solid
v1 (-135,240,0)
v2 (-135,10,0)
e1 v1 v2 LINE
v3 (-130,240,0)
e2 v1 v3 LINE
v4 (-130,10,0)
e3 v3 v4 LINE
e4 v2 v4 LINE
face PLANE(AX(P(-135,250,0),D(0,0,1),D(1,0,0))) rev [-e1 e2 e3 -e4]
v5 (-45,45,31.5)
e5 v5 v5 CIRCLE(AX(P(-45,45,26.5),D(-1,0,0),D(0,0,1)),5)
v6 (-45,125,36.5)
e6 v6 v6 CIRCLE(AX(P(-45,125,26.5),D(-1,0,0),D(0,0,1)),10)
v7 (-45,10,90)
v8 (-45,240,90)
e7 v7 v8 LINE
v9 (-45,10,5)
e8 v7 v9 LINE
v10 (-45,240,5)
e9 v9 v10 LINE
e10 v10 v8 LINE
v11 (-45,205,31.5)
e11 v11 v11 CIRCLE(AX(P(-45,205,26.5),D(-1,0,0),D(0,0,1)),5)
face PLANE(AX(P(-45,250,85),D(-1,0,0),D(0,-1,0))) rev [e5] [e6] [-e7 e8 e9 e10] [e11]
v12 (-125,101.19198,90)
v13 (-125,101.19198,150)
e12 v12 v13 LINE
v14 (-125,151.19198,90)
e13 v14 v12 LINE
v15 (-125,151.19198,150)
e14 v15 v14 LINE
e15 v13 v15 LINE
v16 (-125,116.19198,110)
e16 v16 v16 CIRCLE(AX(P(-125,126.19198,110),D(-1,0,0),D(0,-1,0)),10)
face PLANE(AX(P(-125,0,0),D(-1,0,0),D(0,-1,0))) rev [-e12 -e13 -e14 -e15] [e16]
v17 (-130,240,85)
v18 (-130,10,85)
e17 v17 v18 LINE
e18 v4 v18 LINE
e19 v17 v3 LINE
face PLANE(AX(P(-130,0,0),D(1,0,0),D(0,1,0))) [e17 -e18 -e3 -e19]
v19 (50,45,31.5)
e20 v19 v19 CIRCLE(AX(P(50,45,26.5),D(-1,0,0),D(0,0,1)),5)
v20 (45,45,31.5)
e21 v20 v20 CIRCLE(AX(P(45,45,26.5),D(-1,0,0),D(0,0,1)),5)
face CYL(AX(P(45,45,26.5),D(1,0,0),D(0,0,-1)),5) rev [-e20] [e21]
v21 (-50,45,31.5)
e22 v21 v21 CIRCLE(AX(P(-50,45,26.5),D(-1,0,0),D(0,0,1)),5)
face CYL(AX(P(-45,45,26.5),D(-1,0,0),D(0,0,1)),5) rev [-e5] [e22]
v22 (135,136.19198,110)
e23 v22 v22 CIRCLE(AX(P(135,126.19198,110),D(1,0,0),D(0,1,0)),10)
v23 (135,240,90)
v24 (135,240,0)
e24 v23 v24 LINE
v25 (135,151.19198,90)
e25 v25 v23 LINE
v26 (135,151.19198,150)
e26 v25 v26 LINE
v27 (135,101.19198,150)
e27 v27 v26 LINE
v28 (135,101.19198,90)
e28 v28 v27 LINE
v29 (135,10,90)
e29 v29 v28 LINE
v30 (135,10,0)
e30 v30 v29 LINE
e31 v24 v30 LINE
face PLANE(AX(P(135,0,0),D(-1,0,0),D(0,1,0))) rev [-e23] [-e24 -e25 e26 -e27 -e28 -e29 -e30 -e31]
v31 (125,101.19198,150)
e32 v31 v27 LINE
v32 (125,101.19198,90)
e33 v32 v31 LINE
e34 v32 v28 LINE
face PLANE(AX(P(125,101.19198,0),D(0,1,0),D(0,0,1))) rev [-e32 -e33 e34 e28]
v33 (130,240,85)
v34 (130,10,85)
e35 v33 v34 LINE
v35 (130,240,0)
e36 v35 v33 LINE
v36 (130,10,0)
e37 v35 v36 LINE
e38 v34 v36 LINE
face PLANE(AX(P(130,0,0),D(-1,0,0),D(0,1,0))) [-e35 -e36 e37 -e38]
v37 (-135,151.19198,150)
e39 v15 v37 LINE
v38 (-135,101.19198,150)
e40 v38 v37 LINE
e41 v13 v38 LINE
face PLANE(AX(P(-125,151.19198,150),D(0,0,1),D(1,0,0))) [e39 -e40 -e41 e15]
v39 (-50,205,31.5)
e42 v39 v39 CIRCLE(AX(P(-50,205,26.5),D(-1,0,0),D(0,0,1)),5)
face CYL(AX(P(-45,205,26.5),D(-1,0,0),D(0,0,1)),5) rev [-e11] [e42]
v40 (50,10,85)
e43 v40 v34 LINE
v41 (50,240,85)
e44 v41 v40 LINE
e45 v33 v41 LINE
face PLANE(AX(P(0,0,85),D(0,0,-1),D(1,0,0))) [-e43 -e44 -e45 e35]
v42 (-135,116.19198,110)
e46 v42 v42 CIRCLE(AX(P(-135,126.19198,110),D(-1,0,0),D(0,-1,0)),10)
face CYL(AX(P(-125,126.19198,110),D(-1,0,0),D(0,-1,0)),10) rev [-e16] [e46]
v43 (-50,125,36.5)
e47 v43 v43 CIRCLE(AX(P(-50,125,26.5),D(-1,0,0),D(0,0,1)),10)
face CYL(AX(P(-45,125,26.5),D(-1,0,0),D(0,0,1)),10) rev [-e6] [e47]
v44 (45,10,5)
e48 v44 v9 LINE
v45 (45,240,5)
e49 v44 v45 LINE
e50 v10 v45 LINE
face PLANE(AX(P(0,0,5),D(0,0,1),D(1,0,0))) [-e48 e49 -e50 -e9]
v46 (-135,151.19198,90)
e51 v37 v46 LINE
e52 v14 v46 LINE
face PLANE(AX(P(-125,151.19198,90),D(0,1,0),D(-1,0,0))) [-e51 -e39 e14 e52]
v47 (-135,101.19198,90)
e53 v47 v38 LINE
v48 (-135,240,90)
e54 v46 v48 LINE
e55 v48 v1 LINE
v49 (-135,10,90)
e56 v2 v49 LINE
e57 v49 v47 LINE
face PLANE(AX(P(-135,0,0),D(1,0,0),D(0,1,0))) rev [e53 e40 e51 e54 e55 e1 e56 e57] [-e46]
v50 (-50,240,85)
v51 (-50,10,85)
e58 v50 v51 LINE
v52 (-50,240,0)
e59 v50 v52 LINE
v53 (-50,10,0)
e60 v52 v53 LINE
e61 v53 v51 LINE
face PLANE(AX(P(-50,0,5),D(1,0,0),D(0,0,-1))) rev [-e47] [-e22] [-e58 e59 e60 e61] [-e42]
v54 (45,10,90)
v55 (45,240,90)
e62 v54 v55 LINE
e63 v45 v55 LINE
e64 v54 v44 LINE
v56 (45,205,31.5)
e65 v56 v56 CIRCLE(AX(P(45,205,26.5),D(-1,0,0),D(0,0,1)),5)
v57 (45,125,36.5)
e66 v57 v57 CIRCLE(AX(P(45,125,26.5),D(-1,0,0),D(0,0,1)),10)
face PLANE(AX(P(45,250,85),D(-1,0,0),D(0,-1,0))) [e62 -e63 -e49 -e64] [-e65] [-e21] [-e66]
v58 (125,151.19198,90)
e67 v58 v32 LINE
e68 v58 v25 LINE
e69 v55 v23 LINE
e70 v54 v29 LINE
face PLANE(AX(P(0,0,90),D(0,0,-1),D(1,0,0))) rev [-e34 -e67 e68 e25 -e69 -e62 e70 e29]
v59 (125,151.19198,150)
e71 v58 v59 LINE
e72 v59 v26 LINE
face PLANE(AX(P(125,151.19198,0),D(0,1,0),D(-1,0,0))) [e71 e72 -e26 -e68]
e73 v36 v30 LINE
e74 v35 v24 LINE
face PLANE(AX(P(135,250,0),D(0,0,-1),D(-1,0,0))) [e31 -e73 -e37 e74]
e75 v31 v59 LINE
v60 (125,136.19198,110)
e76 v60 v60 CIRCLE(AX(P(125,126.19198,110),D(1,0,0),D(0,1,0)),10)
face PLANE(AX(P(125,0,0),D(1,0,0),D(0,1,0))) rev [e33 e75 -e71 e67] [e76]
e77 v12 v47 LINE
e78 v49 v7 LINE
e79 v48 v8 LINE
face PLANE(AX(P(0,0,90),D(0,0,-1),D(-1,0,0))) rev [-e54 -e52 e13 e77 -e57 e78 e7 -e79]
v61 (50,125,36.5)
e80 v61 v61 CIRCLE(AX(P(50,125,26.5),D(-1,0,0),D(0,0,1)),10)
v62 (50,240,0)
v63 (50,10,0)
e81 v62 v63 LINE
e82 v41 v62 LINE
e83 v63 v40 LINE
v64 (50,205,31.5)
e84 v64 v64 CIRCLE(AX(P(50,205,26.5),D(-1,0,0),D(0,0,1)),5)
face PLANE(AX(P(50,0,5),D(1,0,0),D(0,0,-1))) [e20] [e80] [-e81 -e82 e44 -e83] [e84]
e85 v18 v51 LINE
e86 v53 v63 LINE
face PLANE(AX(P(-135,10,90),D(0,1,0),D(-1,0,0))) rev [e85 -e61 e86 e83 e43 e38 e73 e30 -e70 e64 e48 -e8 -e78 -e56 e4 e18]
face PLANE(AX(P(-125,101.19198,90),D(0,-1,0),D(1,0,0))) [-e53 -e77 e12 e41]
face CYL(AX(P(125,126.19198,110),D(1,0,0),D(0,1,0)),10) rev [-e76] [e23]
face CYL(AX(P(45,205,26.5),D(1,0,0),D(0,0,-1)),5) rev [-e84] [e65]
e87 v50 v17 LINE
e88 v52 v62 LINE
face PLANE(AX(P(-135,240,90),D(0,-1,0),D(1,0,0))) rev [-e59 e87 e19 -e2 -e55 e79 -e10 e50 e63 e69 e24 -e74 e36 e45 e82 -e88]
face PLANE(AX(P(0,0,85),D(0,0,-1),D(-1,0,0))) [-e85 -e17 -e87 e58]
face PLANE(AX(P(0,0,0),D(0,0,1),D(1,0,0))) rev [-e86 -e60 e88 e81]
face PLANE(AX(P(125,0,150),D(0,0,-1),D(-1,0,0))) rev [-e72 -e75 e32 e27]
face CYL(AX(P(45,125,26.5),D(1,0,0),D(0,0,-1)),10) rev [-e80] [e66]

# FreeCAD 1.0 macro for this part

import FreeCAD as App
import Part
import Sketcher
from FreeCAD import Vector
Q = App.Units.Quantity


def add_polygon(sketch, points):
    """Adds a closed chain of lines whose ends are joined by coincident constraints."""
    first, n = sketch.GeometryCount, len(points)
    for a, b in zip(points, points[1:] + points[:1]):
        sketch.addGeometry(Part.LineSegment(App.Vector(*a, 0), App.Vector(*b, 0)), False)
    for i in range(n):
        sketch.addConstraint(Sketcher.Constraint("Coincident", first + i, 2, first + (i + 1) % n, 1))

doc = App.newDocument("Part")
body = doc.addObject("PartDesign::Body", "Body")

# Sketch on XY plane
sketch1 = body.newObject("Sketcher::SketchObject", "Sketch")
sketch1.AttachmentSupport = (doc.getObject("XY_Plane"), [""])
sketch1.MapMode = "FlatFace"
add_polygon(sketch1, [(-50, 250), (-50, 0), (0, 0), (0, 250)])  # lines 0-3
sketch1.addConstraint([
    Sketcher.Constraint("Vertical", 0),
    Sketcher.Constraint("Horizontal", 1),
    Sketcher.Constraint("Vertical", 2),
    Sketcher.Constraint("Horizontal", 3),
    Sketcher.Constraint("Coincident", 1, 2, -1, 1),
    Sketcher.Constraint("DistanceX", 1, 1, 1, 2, Q("50 mm")),
    Sketcher.Constraint("DistanceY", 0, 2, 0, 1, Q("250 mm")),
])
pad1 = body.newObject("PartDesign::Pad", "Pad")
pad1.Profile = sketch1
pad1.Length = 5

# Sketch on XY plane
sketch2 = body.newObject("Sketcher::SketchObject", "Sketch001")
sketch2.AttachmentSupport = (doc.getObject("XY_Plane"), [""])
sketch2.MapMode = "FlatFace"
sketch2.AttachmentOffset = App.Placement(Vector(0, 0, 5), App.Rotation())
add_polygon(sketch2, [(-50, 250), (-50, 0), (-45, 0), (-45, 250)])  # lines 0-3
sketch2.addConstraint([
    Sketcher.Constraint("Vertical", 0),
    Sketcher.Constraint("Horizontal", 1),
    Sketcher.Constraint("Vertical", 2),
    Sketcher.Constraint("Horizontal", 3),
    Sketcher.Constraint("PointOnObject", 0, 2, -1),
    Sketcher.Constraint("DistanceX", 1, 1, 1, 2, Q("5 mm")),
    Sketcher.Constraint("DistanceY", 0, 2, 0, 1, Q("250 mm")),
    Sketcher.Constraint("DistanceX", 0, 2, -1, 1, Q("50 mm")),
])
pad2 = body.newObject("PartDesign::Pad", "Pad001")
pad2.Profile = sketch2
pad2.Length = 80

# Sketch on XY plane
sketch3 = body.newObject("Sketcher::SketchObject", "Sketch002")
sketch3.AttachmentSupport = (doc.getObject("XY_Plane"), [""])
sketch3.MapMode = "FlatFace"
sketch3.AttachmentOffset = App.Placement(Vector(0, 0, 85), App.Rotation())
add_polygon(sketch3, [(-130, 250), (-130, 0), (-45, 0), (-45, 250)])  # lines 0-3
sketch3.addConstraint([
    Sketcher.Constraint("Vertical", 0),
    Sketcher.Constraint("Horizontal", 1),
    Sketcher.Constraint("Vertical", 2),
    Sketcher.Constraint("Horizontal", 3),
    Sketcher.Constraint("PointOnObject", 0, 2, -1),
    Sketcher.Constraint("DistanceX", 1, 1, 1, 2, Q("85 mm")),
    Sketcher.Constraint("DistanceY", 0, 2, 0, 1, Q("250 mm")),
    Sketcher.Constraint("DistanceX", 0, 2, -1, 1, Q("130 mm")),
])
pad3 = body.newObject("PartDesign::Pad", "Pad002")
pad3.Profile = sketch3
pad3.Length = 5

# Sketch on YZ plane
sketch4 = body.newObject("Sketcher::SketchObject", "Sketch003")
sketch4.AttachmentSupport = (doc.getObject("YZ_Plane"), [""])
sketch4.MapMode = "FlatFace"
sketch4.AttachmentOffset = App.Placement(Vector(0, 0, -130), App.Rotation())
add_polygon(sketch4, [(250, 0), (0, 0), (0, 90), (250, 90)])  # lines 0-3
sketch4.addConstraint([
    Sketcher.Constraint("Horizontal", 0),
    Sketcher.Constraint("Vertical", 1),
    Sketcher.Constraint("Horizontal", 2),
    Sketcher.Constraint("Vertical", 3),
    Sketcher.Constraint("Coincident", 0, 2, -1, 1),
    Sketcher.Constraint("DistanceX", 0, 2, 0, 1, Q("250 mm")),
    Sketcher.Constraint("DistanceY", 1, 1, 1, 2, Q("90 mm")),
])
pad4 = body.newObject("PartDesign::Pad", "Pad003")
pad4.Profile = sketch4
pad4.Length = 5
pad4.Reversed = True

# Sketch on YZ plane
sketch5 = body.newObject("Sketcher::SketchObject", "Sketch004")
sketch5.AttachmentSupport = (doc.getObject("YZ_Plane"), [""])
sketch5.MapMode = "FlatFace"
sketch5.AttachmentOffset = App.Placement(Vector(0, 0, -50), App.Rotation())
sketch5.addGeometry(Part.Circle(Vector(125, 26, 0), Vector(0, 0, 1), 10), False)
sketch5.addConstraint([
    Sketcher.Constraint("Diameter", 0, Q("20 mm")),
    Sketcher.Constraint("DistanceX", -1, 1, 0, 3, Q("125 mm")),
    Sketcher.Constraint("DistanceY", -1, 1, 0, 3, Q("26.5 mm")),
])
pocket1 = body.newObject("PartDesign::Pocket", "Pocket")
pocket1.Profile = sketch5
pocket1.Length = 5
pocket1.Reversed = True

# Sketch on YZ plane
sketch6 = body.newObject("Sketcher::SketchObject", "Sketch005")
sketch6.AttachmentSupport = (doc.getObject("YZ_Plane"), [""])
sketch6.MapMode = "FlatFace"
sketch6.AttachmentOffset = App.Placement(Vector(0, 0, -50), App.Rotation())
sketch6.addGeometry([
    Part.Circle(Vector(205, 26, 0), Vector(0, 0, 1), 5),
    Part.Circle(Vector(45, 26, 0), Vector(0, 0, 1), 5),
], False)
sketch6.addConstraint([
    Sketcher.Constraint("Equal", 0, 1),
    Sketcher.Constraint("Horizontal", 0, 3, 1, 3),
    Sketcher.Constraint("Diameter", 0, Q("10 mm")),
    Sketcher.Constraint("DistanceX", -1, 1, 0, 3, Q("205 mm")),
    Sketcher.Constraint("DistanceX", -1, 1, 1, 3, Q("45 mm")),
    Sketcher.Constraint("DistanceY", -1, 1, 0, 3, Q("26.5 mm")),
])
pocket2 = body.newObject("PartDesign::Pocket", "Pocket001")
pocket2.Profile = sketch6
pocket2.Length = 5
pocket2.Reversed = True
doc.recompute()

mirrored = body.newObject("PartDesign::Mirrored", "Mirrored")
mirrored.Originals = [pad1, pad2, pad3, pad4, pocket1, pocket2]
mirrored.MirrorPlane = (doc.getObject("YZ_Plane"), [""])
body.Tip = mirrored

# Sketch on YZ plane
sketch7 = body.newObject("Sketcher::SketchObject", "Sketch006")
sketch7.AttachmentSupport = (doc.getObject("YZ_Plane"), [""])
sketch7.MapMode = "FlatFace"
sketch7.AttachmentOffset = App.Placement(Vector(0, 0, 135), App.Rotation())
add_polygon(sketch7, [(151, 150), (101, 150), (101, 90), (151, 90)])  # lines 0-3
sketch7.addGeometry(Part.Circle(Vector(126, 110, 0), Vector(0, 0, 1), 10), False)  # 4
sketch7.addConstraint([
    Sketcher.Constraint("Horizontal", 0),
    Sketcher.Constraint("Vertical", 1),
    Sketcher.Constraint("Horizontal", 2),
    Sketcher.Constraint("Vertical", 3),
    Sketcher.Constraint("Diameter", 4, Q("20 mm")),
    Sketcher.Constraint("DistanceX", 0, 2, 0, 1, Q("50 mm")),
    Sketcher.Constraint("DistanceY", 1, 2, 1, 1, Q("60 mm")),
    Sketcher.Constraint("DistanceY", -1, 1, 4, 3, Q("110 mm")),
    Sketcher.Constraint("DistanceY", -1, 1, 0, 2, Q("150 mm")),
    Sketcher.Constraint("DistanceX", 0, 2, 4, 3, Q("25 mm")),
    Sketcher.Constraint("DistanceX", -1, 1, 4, 3, Q("126.19198 mm")),
])
pad5 = body.newObject("PartDesign::Pad", "Pad004")
pad5.Profile = sketch7
pad5.Length = 10
pad5.Reversed = True

# Sketch on YZ plane
sketch8 = body.newObject("Sketcher::SketchObject", "Sketch007")
sketch8.AttachmentSupport = (doc.getObject("YZ_Plane"), [""])
sketch8.MapMode = "FlatFace"
sketch8.AttachmentOffset = App.Placement(Vector(0, 0, -135), App.Rotation())
add_polygon(sketch8, [(151, 90), (101, 90), (101, 150), (151, 150)])  # lines 0-3
sketch8.addGeometry(Part.Circle(Vector(126, 110, 0), Vector(0, 0, 1), 10), False)  # 4
sketch8.addConstraint([
    Sketcher.Constraint("Horizontal", 0),
    Sketcher.Constraint("Vertical", 1),
    Sketcher.Constraint("Horizontal", 2),
    Sketcher.Constraint("Vertical", 3),
    Sketcher.Constraint("Diameter", 4, Q("20 mm")),
    Sketcher.Constraint("DistanceX", 0, 2, 0, 1, Q("50 mm")),
    Sketcher.Constraint("DistanceY", 1, 1, 1, 2, Q("60 mm")),
    Sketcher.Constraint("DistanceY", -1, 1, 4, 3, Q("110 mm")),
    Sketcher.Constraint("DistanceY", -1, 1, 0, 2, Q("90 mm")),
    Sketcher.Constraint("DistanceX", 0, 2, 4, 3, Q("25 mm")),
    Sketcher.Constraint("DistanceX", -1, 1, 4, 3, Q("126.19198 mm")),
])
pad6 = body.newObject("PartDesign::Pad", "Pad005")
pad6.Profile = sketch8
pad6.Length = 10

# Sketch on YZ plane
sketch9 = body.newObject("Sketcher::SketchObject", "Sketch008")
sketch9.AttachmentSupport = (doc.getObject("YZ_Plane"), [""])
sketch9.MapMode = "FlatFace"
sketch9.AttachmentOffset = App.Placement(Vector(0, 0, 135), App.Rotation())
add_polygon(sketch9, [(10, 90), (0, 90), (0, 0), (10, 0)])  # lines 0-3
add_polygon(sketch9, [(250, 90), (240, 90), (240, 0), (250, 0)])  # lines 4-7
sketch9.addConstraint([
    Sketcher.Constraint("Horizontal", 0),
    Sketcher.Constraint("Vertical", 1),
    Sketcher.Constraint("Horizontal", 2),
    Sketcher.Constraint("Vertical", 3),
    Sketcher.Constraint("Horizontal", 4),
    Sketcher.Constraint("Vertical", 5),
    Sketcher.Constraint("Horizontal", 6),
    Sketcher.Constraint("Vertical", 7),
    Sketcher.Constraint("Coincident", 1, 2, -1, 1),
    Sketcher.Constraint("PointOnObject", 5, 2, -1),
    Sketcher.Constraint("Horizontal", 3, 2, 4, 2),
    Sketcher.Constraint("Equal", 2, 4),
    Sketcher.Constraint("DistanceX", 0, 2, 0, 1, Q("10 mm")),
    Sketcher.Constraint("DistanceY", 1, 2, 1, 1, Q("90 mm")),
    Sketcher.Constraint("DistanceX", -1, 1, 4, 2, Q("240 mm")),
])
pocket3 = body.newObject("PartDesign::Pocket", "Pocket002")
pocket3.Profile = sketch9
pocket3.Type = "ThroughAll"

doc.recompute()
